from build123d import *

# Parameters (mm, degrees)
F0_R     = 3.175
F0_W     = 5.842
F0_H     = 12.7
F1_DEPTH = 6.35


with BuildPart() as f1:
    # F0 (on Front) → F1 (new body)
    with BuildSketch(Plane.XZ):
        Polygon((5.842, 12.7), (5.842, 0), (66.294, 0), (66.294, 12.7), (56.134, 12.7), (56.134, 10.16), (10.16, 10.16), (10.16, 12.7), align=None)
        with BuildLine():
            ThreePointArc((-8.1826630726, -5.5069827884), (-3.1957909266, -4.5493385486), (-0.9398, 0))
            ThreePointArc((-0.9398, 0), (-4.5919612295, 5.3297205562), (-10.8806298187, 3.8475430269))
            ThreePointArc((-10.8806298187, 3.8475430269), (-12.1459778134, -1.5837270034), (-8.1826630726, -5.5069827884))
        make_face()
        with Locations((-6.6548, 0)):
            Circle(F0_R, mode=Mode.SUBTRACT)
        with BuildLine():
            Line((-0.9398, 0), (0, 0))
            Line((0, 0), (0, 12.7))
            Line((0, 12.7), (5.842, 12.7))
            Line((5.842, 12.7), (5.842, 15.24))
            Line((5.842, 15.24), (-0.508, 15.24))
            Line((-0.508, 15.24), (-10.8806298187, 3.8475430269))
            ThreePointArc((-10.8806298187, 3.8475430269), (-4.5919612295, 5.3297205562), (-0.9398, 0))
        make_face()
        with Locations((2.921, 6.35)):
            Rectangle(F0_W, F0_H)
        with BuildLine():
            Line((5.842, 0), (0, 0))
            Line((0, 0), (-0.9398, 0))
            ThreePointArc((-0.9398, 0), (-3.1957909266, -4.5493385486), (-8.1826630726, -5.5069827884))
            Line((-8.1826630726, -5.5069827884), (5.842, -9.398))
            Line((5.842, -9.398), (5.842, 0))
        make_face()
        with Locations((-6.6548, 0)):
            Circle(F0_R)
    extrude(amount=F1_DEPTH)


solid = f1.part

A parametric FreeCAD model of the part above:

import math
import FreeCAD as App
import Part
import Sketcher

V = App.Vector
Q = App.Units.Quantity

doc = App.newDocument("Part")
body = doc.addObject("PartDesign::Body", "Body")

sketch1 = body.newObject("Sketcher::SketchObject", "Sketch")
sketch1.AttachmentSupport = (doc.getObject("XZ_Plane"), [""])
sketch1.MapMode = "FlatFace"
sketch1.addGeometry(Part.LineSegment(V(66.3, 0, 0), V(66.3, 12.7, 0)), False)
sketch1.addGeometry(Part.LineSegment(V(66.3, 12.7, 0), V(56.1, 12.7, 0)), False)
sketch1.addGeometry(Part.LineSegment(V(56.1, 12.7, 0), V(56.1, 10.2, 0)), False)
sketch1.addGeometry(Part.LineSegment(V(56.1, 10.2, 0), V(10.2, 10.2, 0)), False)
sketch1.addGeometry(Part.LineSegment(V(10.2, 10.2, 0), V(10.2, 12.7, 0)), False)
sketch1.addGeometry(Part.LineSegment(V(10.2, 12.7, 0), V(5.8, 12.7, 0)), False)
sketch1.addGeometry(Part.LineSegment(V(5.8, 12.7, 0), V(5.8, 15.2, 0)), False)
sketch1.addGeometry(Part.LineSegment(V(5.8, 15.2, 0), V(-0.5, 15.2, 0)), False)
sketch1.addGeometry(Part.LineSegment(V(-0.5, 15.2, 0), V(-10.9, 3.8, 0)), False)
sketch1.addGeometry(Part.ArcOfCircle(Part.Circle(V(-6.7, 0, 0), V(0, 0, 1), 5.7), math.radians(138), math.radians(254)), False)
sketch1.addGeometry(Part.LineSegment(V(-8.2, -5.5, 0), V(5.8, -9.4, 0)), False)
sketch1.addGeometry(Part.LineSegment(V(5.8, -9.4, 0), V(5.8, 0, 0)), False)
sketch1.addGeometry(Part.LineSegment(V(5.8, 0, 0), V(66.3, 0, 0)), False)
sketch1.addConstraint(Sketcher.Constraint("Coincident", 0, 2, 1, 1))
sketch1.addConstraint(Sketcher.Constraint("Coincident", 1, 2, 2, 1))
sketch1.addConstraint(Sketcher.Constraint("Coincident", 2, 2, 3, 1))
sketch1.addConstraint(Sketcher.Constraint("Coincident", 3, 2, 4, 1))
sketch1.addConstraint(Sketcher.Constraint("Coincident", 4, 2, 5, 1))
sketch1.addConstraint(Sketcher.Constraint("Coincident", 5, 2, 6, 1))
sketch1.addConstraint(Sketcher.Constraint("Coincident", 6, 2, 7, 1))
sketch1.addConstraint(Sketcher.Constraint("Coincident", 7, 2, 8, 1))
sketch1.addConstraint(Sketcher.Constraint("Tangent", 8, 2, 9, 1))
sketch1.addConstraint(Sketcher.Constraint("Tangent", 9, 2, 10, 1))
sketch1.addConstraint(Sketcher.Constraint("Coincident", 10, 2, 11, 1))
sketch1.addConstraint(Sketcher.Constraint("Coincident", 11, 2, 12, 1))
sketch1.addConstraint(Sketcher.Constraint("Coincident", 12, 2, 0, 1))
sketch1.addConstraint(Sketcher.Constraint("Vertical", 0))
sketch1.addConstraint(Sketcher.Constraint("Horizontal", 1))
sketch1.addConstraint(Sketcher.Constraint("Vertical", 2))
sketch1.addConstraint(Sketcher.Constraint("Horizontal", 3))
sketch1.addConstraint(Sketcher.Constraint("Vertical", 4))
sketch1.addConstraint(Sketcher.Constraint("Horizontal", 5))
sketch1.addConstraint(Sketcher.Constraint("Vertical", 6))
sketch1.addConstraint(Sketcher.Constraint("Horizontal", 7))
sketch1.addConstraint(Sketcher.Constraint("Vertical", 11))
sketch1.addConstraint(Sketcher.Constraint("Horizontal", 12))
sketch1.addConstraint(Sketcher.Constraint("PointOnObject", 9, 3, -1))
sketch1.addConstraint(Sketcher.Constraint("PointOnObject", 11, 2, -1))
sketch1.addConstraint(Sketcher.Constraint("Horizontal", 1, 2, 4, 2))
sketch1.addConstraint(Sketcher.Constraint("Vertical", 6, 2, 10, 2))
sketch1.addConstraint(Sketcher.Constraint("Equal", 4, 6))
sketch1.addConstraint(Sketcher.Constraint("DistanceX", 1, 2, 1, 1, Q("0.4 in")))
sketch1.addConstraint(Sketcher.Constraint("DistanceY", 0, 1, 0, 2, Q("0.5 in")))
sketch1.addConstraint(Sketcher.Constraint("DistanceY", 2, 2, 2, 1, Q("0.1 in")))
sketch1.addConstraint(Sketcher.Constraint("Radius", 9, Q("0.225 in")))
sketch1.addConstraint(Sketcher.Constraint("DistanceX", 3, 2, 3, 1, Q("1.81 in")))
sketch1.addConstraint(Sketcher.Constraint("DistanceX", 5, 2, 5, 1, Q("0.17 in")))
sketch1.addConstraint(Sketcher.Constraint("DistanceX", 7, 2, 7, 1, Q("0.25 in")))
sketch1.addConstraint(Sketcher.Constraint("DistanceY", 11, 1, 11, 2, Q("0.37 in")))
sketch1.addConstraint(Sketcher.Constraint("DistanceX", -1, 1, 3, 2, Q("0.4 in")))
sketch1.addConstraint(Sketcher.Constraint("DistanceX", 9, 3, -1, 1, Q("0.262 in")))
pad1 = body.newObject("PartDesign::Pad", "Pad")
pad1.Profile = sketch1
pad1.Length = Q("0.25 in")

doc.recompute()
